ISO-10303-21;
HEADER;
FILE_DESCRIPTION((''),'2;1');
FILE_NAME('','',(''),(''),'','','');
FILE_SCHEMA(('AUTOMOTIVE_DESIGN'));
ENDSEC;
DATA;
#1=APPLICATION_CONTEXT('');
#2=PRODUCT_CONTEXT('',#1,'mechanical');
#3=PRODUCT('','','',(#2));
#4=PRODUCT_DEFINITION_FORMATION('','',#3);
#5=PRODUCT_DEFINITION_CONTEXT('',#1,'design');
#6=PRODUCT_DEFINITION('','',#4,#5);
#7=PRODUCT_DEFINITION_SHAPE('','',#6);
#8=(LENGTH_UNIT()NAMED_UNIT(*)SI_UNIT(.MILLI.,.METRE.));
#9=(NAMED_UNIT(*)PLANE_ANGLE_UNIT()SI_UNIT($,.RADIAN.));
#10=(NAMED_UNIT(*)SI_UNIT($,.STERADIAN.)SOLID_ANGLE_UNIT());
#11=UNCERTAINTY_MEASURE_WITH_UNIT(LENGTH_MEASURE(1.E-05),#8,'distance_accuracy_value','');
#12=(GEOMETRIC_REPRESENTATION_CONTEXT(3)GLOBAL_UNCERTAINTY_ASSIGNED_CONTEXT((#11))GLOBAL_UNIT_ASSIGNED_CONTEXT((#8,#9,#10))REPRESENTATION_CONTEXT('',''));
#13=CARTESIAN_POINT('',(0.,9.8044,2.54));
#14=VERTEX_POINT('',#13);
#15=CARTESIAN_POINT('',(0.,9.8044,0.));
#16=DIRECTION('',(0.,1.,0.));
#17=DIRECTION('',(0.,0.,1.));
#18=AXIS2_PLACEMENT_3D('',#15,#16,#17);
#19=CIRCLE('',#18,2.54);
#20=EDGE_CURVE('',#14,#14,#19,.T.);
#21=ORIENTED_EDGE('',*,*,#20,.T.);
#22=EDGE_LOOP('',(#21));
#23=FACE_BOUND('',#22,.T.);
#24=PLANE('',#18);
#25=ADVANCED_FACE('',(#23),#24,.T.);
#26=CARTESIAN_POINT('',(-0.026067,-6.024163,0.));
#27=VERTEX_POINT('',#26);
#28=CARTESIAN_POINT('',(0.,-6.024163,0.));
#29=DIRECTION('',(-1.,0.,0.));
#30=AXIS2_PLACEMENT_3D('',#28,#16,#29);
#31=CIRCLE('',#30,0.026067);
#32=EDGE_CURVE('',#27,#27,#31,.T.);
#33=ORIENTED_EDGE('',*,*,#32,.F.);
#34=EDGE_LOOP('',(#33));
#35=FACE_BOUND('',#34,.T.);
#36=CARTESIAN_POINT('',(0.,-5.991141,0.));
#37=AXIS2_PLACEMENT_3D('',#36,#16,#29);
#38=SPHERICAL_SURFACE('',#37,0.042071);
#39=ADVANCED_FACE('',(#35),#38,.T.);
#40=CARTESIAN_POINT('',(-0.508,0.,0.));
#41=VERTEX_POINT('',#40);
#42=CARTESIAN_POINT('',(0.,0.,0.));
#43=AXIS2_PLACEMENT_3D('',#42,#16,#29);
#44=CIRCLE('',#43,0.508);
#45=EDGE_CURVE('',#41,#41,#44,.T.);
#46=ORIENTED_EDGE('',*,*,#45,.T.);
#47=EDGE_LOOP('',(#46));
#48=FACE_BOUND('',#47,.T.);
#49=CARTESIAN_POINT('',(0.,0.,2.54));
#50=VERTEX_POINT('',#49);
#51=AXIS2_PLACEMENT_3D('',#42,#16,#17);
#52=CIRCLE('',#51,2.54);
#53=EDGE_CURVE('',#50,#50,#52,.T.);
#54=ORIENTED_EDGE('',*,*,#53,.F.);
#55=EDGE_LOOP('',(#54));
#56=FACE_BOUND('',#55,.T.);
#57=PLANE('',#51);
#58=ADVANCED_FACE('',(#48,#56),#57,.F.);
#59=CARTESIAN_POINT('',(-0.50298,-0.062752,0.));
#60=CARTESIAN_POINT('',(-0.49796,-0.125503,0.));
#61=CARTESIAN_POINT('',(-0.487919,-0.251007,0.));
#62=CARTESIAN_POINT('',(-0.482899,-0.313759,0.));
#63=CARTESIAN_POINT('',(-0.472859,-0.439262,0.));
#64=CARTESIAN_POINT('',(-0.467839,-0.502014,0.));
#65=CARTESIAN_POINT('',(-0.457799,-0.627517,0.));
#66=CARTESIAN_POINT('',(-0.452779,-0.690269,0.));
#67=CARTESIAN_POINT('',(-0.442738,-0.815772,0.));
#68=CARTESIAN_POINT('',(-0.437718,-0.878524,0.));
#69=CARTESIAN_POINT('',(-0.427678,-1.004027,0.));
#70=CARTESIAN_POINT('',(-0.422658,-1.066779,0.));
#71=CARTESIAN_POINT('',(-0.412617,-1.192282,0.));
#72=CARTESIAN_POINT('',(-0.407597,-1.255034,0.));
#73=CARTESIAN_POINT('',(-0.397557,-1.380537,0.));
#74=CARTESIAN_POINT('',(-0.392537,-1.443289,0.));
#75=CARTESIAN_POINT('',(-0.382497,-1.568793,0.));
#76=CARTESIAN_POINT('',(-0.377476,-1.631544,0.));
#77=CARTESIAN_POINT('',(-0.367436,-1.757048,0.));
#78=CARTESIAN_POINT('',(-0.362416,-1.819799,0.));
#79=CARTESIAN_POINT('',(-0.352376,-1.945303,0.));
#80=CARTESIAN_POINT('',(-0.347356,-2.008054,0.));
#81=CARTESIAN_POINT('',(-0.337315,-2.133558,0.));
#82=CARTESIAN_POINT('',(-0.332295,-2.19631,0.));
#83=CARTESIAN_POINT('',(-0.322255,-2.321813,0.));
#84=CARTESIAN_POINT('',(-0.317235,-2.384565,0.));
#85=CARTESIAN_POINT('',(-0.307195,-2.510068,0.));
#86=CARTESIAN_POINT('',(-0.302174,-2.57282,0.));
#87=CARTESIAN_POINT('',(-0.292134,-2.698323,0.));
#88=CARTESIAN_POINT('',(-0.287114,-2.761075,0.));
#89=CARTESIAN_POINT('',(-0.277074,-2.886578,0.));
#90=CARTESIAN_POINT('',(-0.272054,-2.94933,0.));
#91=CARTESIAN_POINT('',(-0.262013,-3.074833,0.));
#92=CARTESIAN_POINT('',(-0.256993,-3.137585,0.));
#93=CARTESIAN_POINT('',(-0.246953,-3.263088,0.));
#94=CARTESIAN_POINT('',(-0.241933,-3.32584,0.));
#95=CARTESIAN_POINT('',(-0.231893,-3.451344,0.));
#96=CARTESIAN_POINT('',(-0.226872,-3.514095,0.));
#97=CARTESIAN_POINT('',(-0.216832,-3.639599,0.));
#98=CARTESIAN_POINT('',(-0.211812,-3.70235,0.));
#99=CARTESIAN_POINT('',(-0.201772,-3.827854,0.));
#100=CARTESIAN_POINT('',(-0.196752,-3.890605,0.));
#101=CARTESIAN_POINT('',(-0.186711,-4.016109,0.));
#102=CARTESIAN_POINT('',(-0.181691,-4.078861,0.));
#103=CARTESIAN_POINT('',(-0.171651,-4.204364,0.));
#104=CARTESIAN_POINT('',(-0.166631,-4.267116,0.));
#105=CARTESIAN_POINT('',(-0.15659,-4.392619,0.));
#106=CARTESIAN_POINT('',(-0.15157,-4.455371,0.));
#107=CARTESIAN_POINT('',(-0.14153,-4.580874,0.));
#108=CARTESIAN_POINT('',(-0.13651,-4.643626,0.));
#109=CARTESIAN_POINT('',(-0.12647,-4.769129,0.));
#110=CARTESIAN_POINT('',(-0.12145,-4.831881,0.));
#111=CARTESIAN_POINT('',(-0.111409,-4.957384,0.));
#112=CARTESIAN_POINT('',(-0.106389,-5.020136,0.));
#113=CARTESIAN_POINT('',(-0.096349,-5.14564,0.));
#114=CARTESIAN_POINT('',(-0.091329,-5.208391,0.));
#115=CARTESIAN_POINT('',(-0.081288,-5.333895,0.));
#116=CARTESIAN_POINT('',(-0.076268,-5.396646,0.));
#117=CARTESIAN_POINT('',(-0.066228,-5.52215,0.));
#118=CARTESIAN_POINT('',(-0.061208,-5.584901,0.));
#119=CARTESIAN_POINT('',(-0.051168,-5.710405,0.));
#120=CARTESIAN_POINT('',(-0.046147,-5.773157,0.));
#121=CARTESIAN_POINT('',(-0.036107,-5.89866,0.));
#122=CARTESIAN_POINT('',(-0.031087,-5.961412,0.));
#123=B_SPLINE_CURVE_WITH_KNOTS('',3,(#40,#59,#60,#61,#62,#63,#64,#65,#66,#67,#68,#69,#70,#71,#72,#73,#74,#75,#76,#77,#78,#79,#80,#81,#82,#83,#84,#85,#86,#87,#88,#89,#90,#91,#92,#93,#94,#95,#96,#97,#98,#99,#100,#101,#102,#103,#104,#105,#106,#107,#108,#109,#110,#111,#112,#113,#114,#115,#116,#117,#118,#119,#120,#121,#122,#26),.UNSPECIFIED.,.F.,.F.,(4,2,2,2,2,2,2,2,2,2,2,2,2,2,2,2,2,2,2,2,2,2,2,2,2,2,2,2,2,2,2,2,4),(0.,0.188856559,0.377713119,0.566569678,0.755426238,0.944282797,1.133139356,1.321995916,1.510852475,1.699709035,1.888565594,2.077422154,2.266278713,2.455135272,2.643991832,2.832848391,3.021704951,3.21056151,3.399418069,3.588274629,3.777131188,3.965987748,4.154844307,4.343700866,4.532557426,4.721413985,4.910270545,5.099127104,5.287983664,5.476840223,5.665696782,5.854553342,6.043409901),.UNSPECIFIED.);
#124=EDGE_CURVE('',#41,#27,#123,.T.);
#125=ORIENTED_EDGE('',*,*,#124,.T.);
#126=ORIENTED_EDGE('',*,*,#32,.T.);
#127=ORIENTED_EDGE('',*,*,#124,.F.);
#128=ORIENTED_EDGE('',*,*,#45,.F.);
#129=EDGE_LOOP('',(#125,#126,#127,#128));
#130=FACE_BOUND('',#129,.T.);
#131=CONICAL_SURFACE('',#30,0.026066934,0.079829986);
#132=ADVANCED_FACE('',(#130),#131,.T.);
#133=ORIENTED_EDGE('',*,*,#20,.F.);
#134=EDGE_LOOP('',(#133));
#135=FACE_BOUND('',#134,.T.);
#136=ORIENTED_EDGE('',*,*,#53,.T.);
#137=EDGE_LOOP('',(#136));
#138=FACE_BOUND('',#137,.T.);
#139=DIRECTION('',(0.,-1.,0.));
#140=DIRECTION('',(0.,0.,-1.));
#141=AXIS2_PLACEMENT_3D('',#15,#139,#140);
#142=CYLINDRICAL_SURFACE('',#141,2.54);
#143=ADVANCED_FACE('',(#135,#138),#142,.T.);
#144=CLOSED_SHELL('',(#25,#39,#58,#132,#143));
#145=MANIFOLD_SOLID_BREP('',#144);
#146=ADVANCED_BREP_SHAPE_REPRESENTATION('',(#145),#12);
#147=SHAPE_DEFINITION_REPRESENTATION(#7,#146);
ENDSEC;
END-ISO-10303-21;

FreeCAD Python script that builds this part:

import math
import FreeCAD as App
import Part
import Sketcher

V = App.Vector
Q = App.Units.Quantity

doc = App.newDocument("Part")
body = doc.addObject("PartDesign::Body", "Body")

sketch1 = doc.addObject("Sketcher::SketchObject", "Sketch")
body.addObject(sketch1)
sketch1.AttachmentSupport = (doc.XZ_Plane, [""])
sketch1.MapMode = "FlatFace"
sketch1.addGeometry(Part.Circle(V(0, 0, 0), V(0, 0, 1), 2.54), False)
sketch1.addConstraint([
    Sketcher.Constraint("Coincident", 0, 3, -1, 1),
    Sketcher.Constraint("Diameter", 0, Q("0.2 in")),
])
pad1 = doc.addObject("PartDesign::Pad", "Pad")
body.addObject(pad1)
pad1.Profile = sketch1
pad1.Length = Q("0.386 in")
pad1.Reversed = True

sketch2 = doc.addObject("Sketcher::SketchObject", "Sketch001")
body.addObject(sketch2)
sketch2.AttachmentSupport = (doc.XY_Plane, [""])
sketch2.MapMode = "FlatFace"
sketch2.addGeometry([
    Part.LineSegment(V(0, -6.033212, 0), V(0, 0, 0)),
    Part.LineSegment(V(0, 0, 0), V(-0.508, 0, 0)),
    Part.LineSegment(V(-0.508, 0, 0), V(-0.026067, -6.024163, 0)),
    Part.ArcOfCircle(Part.Circle(V(0, -5.991141, 0), V(0, 0, 1), 0.042071), math.radians(-128.286899), math.radians(-90)),
], False)
sketch2.addConstraint([
    Sketcher.Constraint("Coincident", 0, 2, 1, 1),
    Sketcher.Constraint("Coincident", 1, 2, 2, 1),
    Sketcher.Constraint("Coincident", 2, 2, 3, 1),
    Sketcher.Constraint("Coincident", 3, 2, 0, 1),
    Sketcher.Constraint("Vertical", 0),
    Sketcher.Constraint("Horizontal", 1),
    Sketcher.Constraint("Coincident", 0, 2, -1, 1),
    Sketcher.Constraint("PointOnObject", 3, 3, -2),
    Sketcher.Constraint("DistanceX", 1, 2, 1, 1, Q("0.02 in")),
    Sketcher.Constraint("Radius", 3, Q("0.042071 mm")),
    Sketcher.Constraint("DistanceY", 2, 2, 3, 3, Q("0.0013001 in")),
    Sketcher.Constraint("DistanceY", 0, 1, 0, 2, Q("6.033212 mm")),
])
revolution = doc.addObject("PartDesign::Revolution", "Revolution")
body.addObject(revolution)
revolution.Profile = sketch2
revolution.ReferenceAxis = (sketch2, ["V_Axis"])
revolution.Angle = 360

doc.recompute()
